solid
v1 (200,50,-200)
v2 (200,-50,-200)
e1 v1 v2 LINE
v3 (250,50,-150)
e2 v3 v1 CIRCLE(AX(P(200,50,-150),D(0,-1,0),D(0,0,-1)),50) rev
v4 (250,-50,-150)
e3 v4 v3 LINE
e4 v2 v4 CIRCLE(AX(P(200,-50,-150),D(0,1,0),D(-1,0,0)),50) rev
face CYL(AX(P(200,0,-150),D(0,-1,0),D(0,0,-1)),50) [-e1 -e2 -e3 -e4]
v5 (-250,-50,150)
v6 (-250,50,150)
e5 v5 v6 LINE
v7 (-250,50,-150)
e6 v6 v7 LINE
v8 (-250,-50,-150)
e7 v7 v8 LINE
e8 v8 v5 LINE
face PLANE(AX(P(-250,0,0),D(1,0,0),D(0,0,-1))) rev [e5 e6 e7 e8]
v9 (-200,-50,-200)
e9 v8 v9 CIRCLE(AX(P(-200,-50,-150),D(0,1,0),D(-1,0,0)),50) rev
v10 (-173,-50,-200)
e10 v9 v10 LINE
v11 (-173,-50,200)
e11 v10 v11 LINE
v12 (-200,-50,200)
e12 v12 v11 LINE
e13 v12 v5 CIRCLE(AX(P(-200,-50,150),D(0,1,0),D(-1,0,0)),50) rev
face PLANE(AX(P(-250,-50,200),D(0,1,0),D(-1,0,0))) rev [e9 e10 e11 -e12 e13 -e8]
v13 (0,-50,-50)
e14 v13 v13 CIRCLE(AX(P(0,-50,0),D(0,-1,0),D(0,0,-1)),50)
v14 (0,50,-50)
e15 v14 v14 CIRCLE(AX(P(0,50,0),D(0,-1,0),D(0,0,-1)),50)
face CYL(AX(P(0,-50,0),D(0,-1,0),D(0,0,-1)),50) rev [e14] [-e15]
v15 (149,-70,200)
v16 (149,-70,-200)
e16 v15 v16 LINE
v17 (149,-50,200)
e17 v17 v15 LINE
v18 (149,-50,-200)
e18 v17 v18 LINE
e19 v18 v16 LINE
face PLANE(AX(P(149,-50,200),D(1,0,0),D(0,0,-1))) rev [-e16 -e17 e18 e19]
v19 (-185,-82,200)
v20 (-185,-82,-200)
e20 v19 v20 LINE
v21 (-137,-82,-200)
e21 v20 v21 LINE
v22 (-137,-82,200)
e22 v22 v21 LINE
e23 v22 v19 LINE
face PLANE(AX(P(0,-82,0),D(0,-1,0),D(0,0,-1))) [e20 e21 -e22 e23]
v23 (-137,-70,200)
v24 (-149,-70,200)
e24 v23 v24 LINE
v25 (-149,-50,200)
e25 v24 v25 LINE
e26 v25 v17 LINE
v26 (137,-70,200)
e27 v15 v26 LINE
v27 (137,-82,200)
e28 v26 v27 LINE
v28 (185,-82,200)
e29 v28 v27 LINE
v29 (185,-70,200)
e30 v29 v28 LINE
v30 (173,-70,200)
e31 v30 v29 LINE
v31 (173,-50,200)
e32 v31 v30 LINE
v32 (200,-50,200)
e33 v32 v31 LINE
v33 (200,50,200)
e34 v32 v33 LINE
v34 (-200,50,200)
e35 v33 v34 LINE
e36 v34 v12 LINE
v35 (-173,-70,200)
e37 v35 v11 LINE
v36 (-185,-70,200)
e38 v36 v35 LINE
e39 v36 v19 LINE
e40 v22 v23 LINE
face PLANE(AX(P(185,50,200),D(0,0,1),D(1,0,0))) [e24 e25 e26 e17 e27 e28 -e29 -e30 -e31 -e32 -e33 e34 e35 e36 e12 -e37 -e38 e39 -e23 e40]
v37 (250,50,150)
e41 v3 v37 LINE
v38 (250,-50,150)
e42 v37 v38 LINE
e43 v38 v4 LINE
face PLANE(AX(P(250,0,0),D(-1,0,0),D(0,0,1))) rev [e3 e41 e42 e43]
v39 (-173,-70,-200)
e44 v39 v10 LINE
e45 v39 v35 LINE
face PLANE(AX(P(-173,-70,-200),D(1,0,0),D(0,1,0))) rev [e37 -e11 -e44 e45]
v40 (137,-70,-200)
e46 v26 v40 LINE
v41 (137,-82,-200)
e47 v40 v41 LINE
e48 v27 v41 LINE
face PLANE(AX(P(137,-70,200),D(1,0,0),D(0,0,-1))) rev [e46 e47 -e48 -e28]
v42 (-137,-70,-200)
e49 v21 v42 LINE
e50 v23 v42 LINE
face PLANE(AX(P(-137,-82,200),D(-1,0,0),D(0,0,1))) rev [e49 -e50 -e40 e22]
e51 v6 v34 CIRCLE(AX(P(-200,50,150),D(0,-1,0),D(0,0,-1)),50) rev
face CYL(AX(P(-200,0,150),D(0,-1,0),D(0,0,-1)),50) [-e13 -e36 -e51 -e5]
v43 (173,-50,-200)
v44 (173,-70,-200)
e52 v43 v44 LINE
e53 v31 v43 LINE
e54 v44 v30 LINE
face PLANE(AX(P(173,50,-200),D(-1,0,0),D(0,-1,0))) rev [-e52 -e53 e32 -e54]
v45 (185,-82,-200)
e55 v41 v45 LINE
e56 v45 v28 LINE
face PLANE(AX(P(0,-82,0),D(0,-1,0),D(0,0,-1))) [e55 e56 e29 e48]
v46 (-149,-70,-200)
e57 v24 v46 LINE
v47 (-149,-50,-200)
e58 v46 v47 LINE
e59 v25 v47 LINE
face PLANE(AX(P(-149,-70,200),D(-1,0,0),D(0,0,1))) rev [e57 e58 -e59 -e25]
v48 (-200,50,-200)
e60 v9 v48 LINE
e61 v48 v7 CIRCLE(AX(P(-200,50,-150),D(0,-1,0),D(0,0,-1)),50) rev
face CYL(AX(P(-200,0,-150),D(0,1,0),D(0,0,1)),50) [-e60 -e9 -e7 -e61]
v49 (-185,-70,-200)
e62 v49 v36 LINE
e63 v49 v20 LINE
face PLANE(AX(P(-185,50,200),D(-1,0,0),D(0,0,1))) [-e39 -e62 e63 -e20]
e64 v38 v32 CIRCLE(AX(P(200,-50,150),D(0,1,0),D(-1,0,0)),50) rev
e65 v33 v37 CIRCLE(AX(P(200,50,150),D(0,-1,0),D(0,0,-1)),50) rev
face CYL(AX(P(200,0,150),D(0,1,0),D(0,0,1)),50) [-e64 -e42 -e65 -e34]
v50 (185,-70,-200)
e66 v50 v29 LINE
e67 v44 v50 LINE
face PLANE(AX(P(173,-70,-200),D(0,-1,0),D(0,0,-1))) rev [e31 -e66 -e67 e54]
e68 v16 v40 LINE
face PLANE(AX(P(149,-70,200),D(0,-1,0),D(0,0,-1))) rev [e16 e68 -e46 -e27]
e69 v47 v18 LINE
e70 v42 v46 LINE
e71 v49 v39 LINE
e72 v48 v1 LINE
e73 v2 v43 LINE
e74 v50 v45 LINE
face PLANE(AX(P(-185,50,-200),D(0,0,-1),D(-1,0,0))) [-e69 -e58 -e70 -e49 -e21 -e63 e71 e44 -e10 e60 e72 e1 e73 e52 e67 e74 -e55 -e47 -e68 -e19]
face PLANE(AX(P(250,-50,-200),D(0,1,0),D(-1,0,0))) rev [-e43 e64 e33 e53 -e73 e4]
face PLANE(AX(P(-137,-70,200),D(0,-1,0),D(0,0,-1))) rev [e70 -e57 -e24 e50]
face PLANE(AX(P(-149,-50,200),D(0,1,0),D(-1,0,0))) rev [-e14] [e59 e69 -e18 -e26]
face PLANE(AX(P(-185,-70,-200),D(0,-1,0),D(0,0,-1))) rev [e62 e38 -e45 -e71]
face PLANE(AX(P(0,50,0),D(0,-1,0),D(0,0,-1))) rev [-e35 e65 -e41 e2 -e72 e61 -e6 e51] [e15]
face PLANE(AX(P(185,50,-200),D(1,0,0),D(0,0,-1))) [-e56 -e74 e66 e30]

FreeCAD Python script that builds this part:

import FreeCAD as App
import Part
import Sketcher


def edges_at(feature, points):
    """Names of the edges that pass closest to the given points."""
    edges = feature.Shape.Edges
    near = lambda p: min(range(len(edges)), key=lambda i: edges[i].distToShape(Part.Vertex(*p))[0])
    return sorted({f"Edge{near(p) + 1}" for p in points})


def add_polygon(sketch, points):
    """Adds a closed chain of lines whose ends are joined by coincident constraints."""
    first, n = sketch.GeometryCount, len(points)
    for a, b in zip(points, points[1:] + points[:1]):
        sketch.addGeometry(Part.LineSegment(App.Vector(*a, 0), App.Vector(*b, 0)), False)
    for i in range(n):
        sketch.addConstraint(Sketcher.Constraint("Coincident", first + i, 2, first + (i + 1) % n, 1))

doc = App.newDocument("Part")
params = doc.addObject("Spreadsheet::Sheet", "Params")
for row, (alias, value) in enumerate([
    ("sketch1_width", "370 mm"),
    ("sketch1_height", "400 mm"),
    ("pad1_length", "132 mm"),
    ("sketch2_width", "12 mm"),
    ("sketch2_height", "120 mm"),
    ("sketch3_width", "100 mm"),
    ("sketch3_height", "400 mm"),
    ("pad2_length", "77 mm"),
    ("sketch4_width", "12 mm"),
    ("sketch4_height", "120 mm"),
    ("sketch5_width", "100 mm"),
    ("sketch5_height", "400 mm"),
    ("pad3_length", "77 mm"),
    ("sketch6_width", "274 mm"),
    ("sketch6_width2", "12 mm"),
    ("sketch6_height", "20 mm"),
    ("sketch7_diameter", "100 mm"),
    ("hole_diameter", "100 mm"),
    ("fillet_radius", "50 mm"),
], start=1):
    params.set(f"A{row}", alias)
    params.set(f"B{row}", "=" + value)
    params.setAlias(f"B{row}", alias)

body = doc.addObject("PartDesign::Body", "Body")

sketch1 = body.newObject("Sketcher::SketchObject", "Sketch")
sketch1.AttachmentSupport = (doc.getObject("XZ_Plane"), [""])
sketch1.MapMode = "FlatFace"
sketch1.AttachmentOffset = App.Placement(App.Vector(0, 0, 82), App.Rotation())
add_polygon(sketch1, [(-185, 200), (-185, -200), (185, -200), (185, 200)])
sketch1.addConstraint(Sketcher.Constraint("Vertical", 0))
sketch1.addConstraint(Sketcher.Constraint("Horizontal", 1))
sketch1.addConstraint(Sketcher.Constraint("Vertical", 2))
sketch1.addConstraint(Sketcher.Constraint("Horizontal", 3))
sketch1.addConstraint(Sketcher.Constraint("Symmetric", 0, 2, 2, 2, -1, 1))
sketch1.addConstraint(Sketcher.Constraint("DistanceX", 1, 1, 1, 2, 370.0))
sketch1.addConstraint(Sketcher.Constraint("DistanceY", 0, 2, 0, 1, 400.0))
sketch1.setExpression("Constraints[9]", "Params.sketch1_width")
sketch1.setExpression("Constraints[10]", "Params.sketch1_height")
pad1 = body.newObject("PartDesign::Pad", "Pad")
pad1.Profile = sketch1
pad1.setExpression("Length", "Params.pad1_length")
pad1.Reversed = True

sketch2 = body.newObject("Sketcher::SketchObject", "Sketch001")
sketch2.AttachmentSupport = (doc.getObject("XY_Plane"), [""])
sketch2.MapMode = "FlatFace"
sketch2.AttachmentOffset = App.Placement(App.Vector(0, 0, 200), App.Rotation())
add_polygon(sketch2, [(-185, 50), (-185, -70), (-173, -70), (-173, 50)])
sketch2.addConstraint(Sketcher.Constraint("Vertical", 0))
sketch2.addConstraint(Sketcher.Constraint("Horizontal", 1))
sketch2.addConstraint(Sketcher.Constraint("Vertical", 2))
sketch2.addConstraint(Sketcher.Constraint("Horizontal", 3))
sketch2.addConstraint(Sketcher.Constraint("DistanceX", 1, 1, 1, 2, 12.0))
sketch2.addConstraint(Sketcher.Constraint("DistanceY", 0, 2, 0, 1, 120.0))
sketch2.addConstraint(Sketcher.Constraint("DistanceX", 0, 2, -1, 1, 185.0))
sketch2.addConstraint(Sketcher.Constraint("DistanceY", 0, 2, -1, 1, 70.0))
sketch2.setExpression("Constraints[8]", "Params.sketch2_width")
sketch2.setExpression("Constraints[9]", "Params.sketch2_height")
pocket1 = body.newObject("PartDesign::Pocket", "Pocket")
pocket1.Profile = sketch2
pocket1.Type = "ThroughAll"

sketch3 = body.newObject("Sketcher::SketchObject", "Sketch002")
sketch3.AttachmentSupport = (doc.getObject("YZ_Plane"), [""])
sketch3.MapMode = "FlatFace"
sketch3.AttachmentOffset = App.Placement(App.Vector(0, 0, -173), App.Rotation())
add_polygon(sketch3, [(50, -200), (-50, -200), (-50, 200), (50, 200)])
sketch3.addConstraint(Sketcher.Constraint("Horizontal", 0))
sketch3.addConstraint(Sketcher.Constraint("Vertical", 1))
sketch3.addConstraint(Sketcher.Constraint("Horizontal", 2))
sketch3.addConstraint(Sketcher.Constraint("Vertical", 3))
sketch3.addConstraint(Sketcher.Constraint("Symmetric", 0, 2, 2, 2, -1, 1))
sketch3.addConstraint(Sketcher.Constraint("DistanceX", 0, 2, 0, 1, 100.0))
sketch3.addConstraint(Sketcher.Constraint("DistanceY", 1, 1, 1, 2, 400.0))
sketch3.setExpression("Constraints[9]", "Params.sketch3_width")
sketch3.setExpression("Constraints[10]", "Params.sketch3_height")
pad2 = body.newObject("PartDesign::Pad", "Pad001")
pad2.Profile = sketch3
pad2.setExpression("Length", "Params.pad2_length")
pad2.Reversed = True

sketch4 = body.newObject("Sketcher::SketchObject", "Sketch003")
sketch4.AttachmentSupport = (doc.getObject("XY_Plane"), [""])
sketch4.MapMode = "FlatFace"
sketch4.AttachmentOffset = App.Placement(App.Vector(0, 0, 200), App.Rotation())
add_polygon(sketch4, [(173, 50), (173, -70), (185, -70), (185, 50)])
sketch4.addConstraint(Sketcher.Constraint("Vertical", 0))
sketch4.addConstraint(Sketcher.Constraint("Horizontal", 1))
sketch4.addConstraint(Sketcher.Constraint("Vertical", 2))
sketch4.addConstraint(Sketcher.Constraint("Horizontal", 3))
sketch4.addConstraint(Sketcher.Constraint("DistanceX", 1, 1, 1, 2, 12.0))
sketch4.addConstraint(Sketcher.Constraint("DistanceY", 0, 2, 0, 1, 120.0))
sketch4.addConstraint(Sketcher.Constraint("DistanceX", -1, 1, 0, 2, 173.0))
sketch4.addConstraint(Sketcher.Constraint("DistanceY", 0, 2, -1, 1, 70.0))
sketch4.setExpression("Constraints[8]", "Params.sketch4_width")
sketch4.setExpression("Constraints[9]", "Params.sketch4_height")
pocket2 = body.newObject("PartDesign::Pocket", "Pocket001")
pocket2.Profile = sketch4
pocket2.Type = "ThroughAll"

sketch5 = body.newObject("Sketcher::SketchObject", "Sketch004")
sketch5.AttachmentSupport = (doc.getObject("YZ_Plane"), [""])
sketch5.MapMode = "FlatFace"
sketch5.AttachmentOffset = App.Placement(App.Vector(0, 0, 173), App.Rotation())
add_polygon(sketch5, [(50, 200), (-50, 200), (-50, -200), (50, -200)])
sketch5.addConstraint(Sketcher.Constraint("Horizontal", 0))
sketch5.addConstraint(Sketcher.Constraint("Vertical", 1))
sketch5.addConstraint(Sketcher.Constraint("Horizontal", 2))
sketch5.addConstraint(Sketcher.Constraint("Vertical", 3))
sketch5.addConstraint(Sketcher.Constraint("Symmetric", 0, 2, 2, 2, -1, 1))
sketch5.addConstraint(Sketcher.Constraint("DistanceX", 0, 2, 0, 1, 100.0))
sketch5.addConstraint(Sketcher.Constraint("DistanceY", 1, 2, 1, 1, 400.0))
sketch5.setExpression("Constraints[9]", "Params.sketch5_width")
sketch5.setExpression("Constraints[10]", "Params.sketch5_height")
pad3 = body.newObject("PartDesign::Pad", "Pad002")
pad3.Profile = sketch5
pad3.setExpression("Length", "Params.pad3_length")

sketch6 = body.newObject("Sketcher::SketchObject", "Sketch005")
sketch6.AttachmentSupport = (doc.getObject("XY_Plane"), [""])
sketch6.MapMode = "FlatFace"
sketch6.AttachmentOffset = App.Placement(App.Vector(0, 0, -200), App.Rotation())
add_polygon(sketch6, [(137, -82), (-137, -82), (-137, -70), (-149, -70), (-149, -50), (149, -50), (149, -70), (137, -70)])
sketch6.addConstraint(Sketcher.Constraint("Horizontal", 0))
sketch6.addConstraint(Sketcher.Constraint("Vertical", 1))
sketch6.addConstraint(Sketcher.Constraint("Horizontal", 2))
sketch6.addConstraint(Sketcher.Constraint("Vertical", 3))
sketch6.addConstraint(Sketcher.Constraint("Horizontal", 4))
sketch6.addConstraint(Sketcher.Constraint("Vertical", 5))
sketch6.addConstraint(Sketcher.Constraint("Horizontal", 6))
sketch6.addConstraint(Sketcher.Constraint("Vertical", 7))
sketch6.addConstraint(Sketcher.Constraint("Symmetric", 2, 2, 5, 2, -2))
sketch6.addConstraint(Sketcher.Constraint("Equal", 2, 6))
sketch6.addConstraint(Sketcher.Constraint("Equal", 6, 1))
sketch6.addConstraint(Sketcher.Constraint("DistanceX", 0, 2, 0, 1, 274.0))
sketch6.addConstraint(Sketcher.Constraint("DistanceX", 2, 2, 2, 1, 12.0))
sketch6.addConstraint(Sketcher.Constraint("DistanceY", 3, 1, 3, 2, 20.0))
sketch6.addConstraint(Sketcher.Constraint("DistanceY", 0, 2, -1, 1, 82.0))
sketch6.setExpression("Constraints[19]", "Params.sketch6_width")
sketch6.setExpression("Constraints[20]", "Params.sketch6_width2")
sketch6.setExpression("Constraints[21]", "Params.sketch6_height")
pocket3 = body.newObject("PartDesign::Pocket", "Pocket002")
pocket3.Profile = sketch6
pocket3.Type = "ThroughAll"
pocket3.Reversed = True

sketch7 = body.newObject("Sketcher::SketchObject", "Sketch006")
sketch7.AttachmentSupport = (doc.getObject("XZ_Plane"), [""])
sketch7.MapMode = "FlatFace"
sketch7.AttachmentOffset = App.Placement(App.Vector(0, 0, 50), App.Rotation())
sketch7.addGeometry(Part.Circle(App.Vector(0, 0, 0), App.Vector(0, 0, 1), 50), False)
sketch7.addConstraint(Sketcher.Constraint("Coincident", 0, 3, -1, 1))
sketch7.addConstraint(Sketcher.Constraint("Diameter", 0, 100.0))
sketch7.setExpression("Constraints[1]", "Params.sketch7_diameter")
doc.recompute()
hole = body.newObject("PartDesign::Hole", "Hole")
hole.Profile = sketch7
hole.ThreadType = "None"
hole.setExpression("Diameter", "Params.hole_diameter")
hole.DepthType = "ThroughAll"
doc.recompute()

fillet = body.newObject("PartDesign::Fillet", "Fillet")
fillet.Base = (hole, edges_at(hole, [
    (-250, 0, -200),
    (-250, 0, 200),
    (250, 0, -200),
    (250, 0, 200),
]))
fillet.setExpression("Radius", "Params.fillet_radius")

doc.recompute()
